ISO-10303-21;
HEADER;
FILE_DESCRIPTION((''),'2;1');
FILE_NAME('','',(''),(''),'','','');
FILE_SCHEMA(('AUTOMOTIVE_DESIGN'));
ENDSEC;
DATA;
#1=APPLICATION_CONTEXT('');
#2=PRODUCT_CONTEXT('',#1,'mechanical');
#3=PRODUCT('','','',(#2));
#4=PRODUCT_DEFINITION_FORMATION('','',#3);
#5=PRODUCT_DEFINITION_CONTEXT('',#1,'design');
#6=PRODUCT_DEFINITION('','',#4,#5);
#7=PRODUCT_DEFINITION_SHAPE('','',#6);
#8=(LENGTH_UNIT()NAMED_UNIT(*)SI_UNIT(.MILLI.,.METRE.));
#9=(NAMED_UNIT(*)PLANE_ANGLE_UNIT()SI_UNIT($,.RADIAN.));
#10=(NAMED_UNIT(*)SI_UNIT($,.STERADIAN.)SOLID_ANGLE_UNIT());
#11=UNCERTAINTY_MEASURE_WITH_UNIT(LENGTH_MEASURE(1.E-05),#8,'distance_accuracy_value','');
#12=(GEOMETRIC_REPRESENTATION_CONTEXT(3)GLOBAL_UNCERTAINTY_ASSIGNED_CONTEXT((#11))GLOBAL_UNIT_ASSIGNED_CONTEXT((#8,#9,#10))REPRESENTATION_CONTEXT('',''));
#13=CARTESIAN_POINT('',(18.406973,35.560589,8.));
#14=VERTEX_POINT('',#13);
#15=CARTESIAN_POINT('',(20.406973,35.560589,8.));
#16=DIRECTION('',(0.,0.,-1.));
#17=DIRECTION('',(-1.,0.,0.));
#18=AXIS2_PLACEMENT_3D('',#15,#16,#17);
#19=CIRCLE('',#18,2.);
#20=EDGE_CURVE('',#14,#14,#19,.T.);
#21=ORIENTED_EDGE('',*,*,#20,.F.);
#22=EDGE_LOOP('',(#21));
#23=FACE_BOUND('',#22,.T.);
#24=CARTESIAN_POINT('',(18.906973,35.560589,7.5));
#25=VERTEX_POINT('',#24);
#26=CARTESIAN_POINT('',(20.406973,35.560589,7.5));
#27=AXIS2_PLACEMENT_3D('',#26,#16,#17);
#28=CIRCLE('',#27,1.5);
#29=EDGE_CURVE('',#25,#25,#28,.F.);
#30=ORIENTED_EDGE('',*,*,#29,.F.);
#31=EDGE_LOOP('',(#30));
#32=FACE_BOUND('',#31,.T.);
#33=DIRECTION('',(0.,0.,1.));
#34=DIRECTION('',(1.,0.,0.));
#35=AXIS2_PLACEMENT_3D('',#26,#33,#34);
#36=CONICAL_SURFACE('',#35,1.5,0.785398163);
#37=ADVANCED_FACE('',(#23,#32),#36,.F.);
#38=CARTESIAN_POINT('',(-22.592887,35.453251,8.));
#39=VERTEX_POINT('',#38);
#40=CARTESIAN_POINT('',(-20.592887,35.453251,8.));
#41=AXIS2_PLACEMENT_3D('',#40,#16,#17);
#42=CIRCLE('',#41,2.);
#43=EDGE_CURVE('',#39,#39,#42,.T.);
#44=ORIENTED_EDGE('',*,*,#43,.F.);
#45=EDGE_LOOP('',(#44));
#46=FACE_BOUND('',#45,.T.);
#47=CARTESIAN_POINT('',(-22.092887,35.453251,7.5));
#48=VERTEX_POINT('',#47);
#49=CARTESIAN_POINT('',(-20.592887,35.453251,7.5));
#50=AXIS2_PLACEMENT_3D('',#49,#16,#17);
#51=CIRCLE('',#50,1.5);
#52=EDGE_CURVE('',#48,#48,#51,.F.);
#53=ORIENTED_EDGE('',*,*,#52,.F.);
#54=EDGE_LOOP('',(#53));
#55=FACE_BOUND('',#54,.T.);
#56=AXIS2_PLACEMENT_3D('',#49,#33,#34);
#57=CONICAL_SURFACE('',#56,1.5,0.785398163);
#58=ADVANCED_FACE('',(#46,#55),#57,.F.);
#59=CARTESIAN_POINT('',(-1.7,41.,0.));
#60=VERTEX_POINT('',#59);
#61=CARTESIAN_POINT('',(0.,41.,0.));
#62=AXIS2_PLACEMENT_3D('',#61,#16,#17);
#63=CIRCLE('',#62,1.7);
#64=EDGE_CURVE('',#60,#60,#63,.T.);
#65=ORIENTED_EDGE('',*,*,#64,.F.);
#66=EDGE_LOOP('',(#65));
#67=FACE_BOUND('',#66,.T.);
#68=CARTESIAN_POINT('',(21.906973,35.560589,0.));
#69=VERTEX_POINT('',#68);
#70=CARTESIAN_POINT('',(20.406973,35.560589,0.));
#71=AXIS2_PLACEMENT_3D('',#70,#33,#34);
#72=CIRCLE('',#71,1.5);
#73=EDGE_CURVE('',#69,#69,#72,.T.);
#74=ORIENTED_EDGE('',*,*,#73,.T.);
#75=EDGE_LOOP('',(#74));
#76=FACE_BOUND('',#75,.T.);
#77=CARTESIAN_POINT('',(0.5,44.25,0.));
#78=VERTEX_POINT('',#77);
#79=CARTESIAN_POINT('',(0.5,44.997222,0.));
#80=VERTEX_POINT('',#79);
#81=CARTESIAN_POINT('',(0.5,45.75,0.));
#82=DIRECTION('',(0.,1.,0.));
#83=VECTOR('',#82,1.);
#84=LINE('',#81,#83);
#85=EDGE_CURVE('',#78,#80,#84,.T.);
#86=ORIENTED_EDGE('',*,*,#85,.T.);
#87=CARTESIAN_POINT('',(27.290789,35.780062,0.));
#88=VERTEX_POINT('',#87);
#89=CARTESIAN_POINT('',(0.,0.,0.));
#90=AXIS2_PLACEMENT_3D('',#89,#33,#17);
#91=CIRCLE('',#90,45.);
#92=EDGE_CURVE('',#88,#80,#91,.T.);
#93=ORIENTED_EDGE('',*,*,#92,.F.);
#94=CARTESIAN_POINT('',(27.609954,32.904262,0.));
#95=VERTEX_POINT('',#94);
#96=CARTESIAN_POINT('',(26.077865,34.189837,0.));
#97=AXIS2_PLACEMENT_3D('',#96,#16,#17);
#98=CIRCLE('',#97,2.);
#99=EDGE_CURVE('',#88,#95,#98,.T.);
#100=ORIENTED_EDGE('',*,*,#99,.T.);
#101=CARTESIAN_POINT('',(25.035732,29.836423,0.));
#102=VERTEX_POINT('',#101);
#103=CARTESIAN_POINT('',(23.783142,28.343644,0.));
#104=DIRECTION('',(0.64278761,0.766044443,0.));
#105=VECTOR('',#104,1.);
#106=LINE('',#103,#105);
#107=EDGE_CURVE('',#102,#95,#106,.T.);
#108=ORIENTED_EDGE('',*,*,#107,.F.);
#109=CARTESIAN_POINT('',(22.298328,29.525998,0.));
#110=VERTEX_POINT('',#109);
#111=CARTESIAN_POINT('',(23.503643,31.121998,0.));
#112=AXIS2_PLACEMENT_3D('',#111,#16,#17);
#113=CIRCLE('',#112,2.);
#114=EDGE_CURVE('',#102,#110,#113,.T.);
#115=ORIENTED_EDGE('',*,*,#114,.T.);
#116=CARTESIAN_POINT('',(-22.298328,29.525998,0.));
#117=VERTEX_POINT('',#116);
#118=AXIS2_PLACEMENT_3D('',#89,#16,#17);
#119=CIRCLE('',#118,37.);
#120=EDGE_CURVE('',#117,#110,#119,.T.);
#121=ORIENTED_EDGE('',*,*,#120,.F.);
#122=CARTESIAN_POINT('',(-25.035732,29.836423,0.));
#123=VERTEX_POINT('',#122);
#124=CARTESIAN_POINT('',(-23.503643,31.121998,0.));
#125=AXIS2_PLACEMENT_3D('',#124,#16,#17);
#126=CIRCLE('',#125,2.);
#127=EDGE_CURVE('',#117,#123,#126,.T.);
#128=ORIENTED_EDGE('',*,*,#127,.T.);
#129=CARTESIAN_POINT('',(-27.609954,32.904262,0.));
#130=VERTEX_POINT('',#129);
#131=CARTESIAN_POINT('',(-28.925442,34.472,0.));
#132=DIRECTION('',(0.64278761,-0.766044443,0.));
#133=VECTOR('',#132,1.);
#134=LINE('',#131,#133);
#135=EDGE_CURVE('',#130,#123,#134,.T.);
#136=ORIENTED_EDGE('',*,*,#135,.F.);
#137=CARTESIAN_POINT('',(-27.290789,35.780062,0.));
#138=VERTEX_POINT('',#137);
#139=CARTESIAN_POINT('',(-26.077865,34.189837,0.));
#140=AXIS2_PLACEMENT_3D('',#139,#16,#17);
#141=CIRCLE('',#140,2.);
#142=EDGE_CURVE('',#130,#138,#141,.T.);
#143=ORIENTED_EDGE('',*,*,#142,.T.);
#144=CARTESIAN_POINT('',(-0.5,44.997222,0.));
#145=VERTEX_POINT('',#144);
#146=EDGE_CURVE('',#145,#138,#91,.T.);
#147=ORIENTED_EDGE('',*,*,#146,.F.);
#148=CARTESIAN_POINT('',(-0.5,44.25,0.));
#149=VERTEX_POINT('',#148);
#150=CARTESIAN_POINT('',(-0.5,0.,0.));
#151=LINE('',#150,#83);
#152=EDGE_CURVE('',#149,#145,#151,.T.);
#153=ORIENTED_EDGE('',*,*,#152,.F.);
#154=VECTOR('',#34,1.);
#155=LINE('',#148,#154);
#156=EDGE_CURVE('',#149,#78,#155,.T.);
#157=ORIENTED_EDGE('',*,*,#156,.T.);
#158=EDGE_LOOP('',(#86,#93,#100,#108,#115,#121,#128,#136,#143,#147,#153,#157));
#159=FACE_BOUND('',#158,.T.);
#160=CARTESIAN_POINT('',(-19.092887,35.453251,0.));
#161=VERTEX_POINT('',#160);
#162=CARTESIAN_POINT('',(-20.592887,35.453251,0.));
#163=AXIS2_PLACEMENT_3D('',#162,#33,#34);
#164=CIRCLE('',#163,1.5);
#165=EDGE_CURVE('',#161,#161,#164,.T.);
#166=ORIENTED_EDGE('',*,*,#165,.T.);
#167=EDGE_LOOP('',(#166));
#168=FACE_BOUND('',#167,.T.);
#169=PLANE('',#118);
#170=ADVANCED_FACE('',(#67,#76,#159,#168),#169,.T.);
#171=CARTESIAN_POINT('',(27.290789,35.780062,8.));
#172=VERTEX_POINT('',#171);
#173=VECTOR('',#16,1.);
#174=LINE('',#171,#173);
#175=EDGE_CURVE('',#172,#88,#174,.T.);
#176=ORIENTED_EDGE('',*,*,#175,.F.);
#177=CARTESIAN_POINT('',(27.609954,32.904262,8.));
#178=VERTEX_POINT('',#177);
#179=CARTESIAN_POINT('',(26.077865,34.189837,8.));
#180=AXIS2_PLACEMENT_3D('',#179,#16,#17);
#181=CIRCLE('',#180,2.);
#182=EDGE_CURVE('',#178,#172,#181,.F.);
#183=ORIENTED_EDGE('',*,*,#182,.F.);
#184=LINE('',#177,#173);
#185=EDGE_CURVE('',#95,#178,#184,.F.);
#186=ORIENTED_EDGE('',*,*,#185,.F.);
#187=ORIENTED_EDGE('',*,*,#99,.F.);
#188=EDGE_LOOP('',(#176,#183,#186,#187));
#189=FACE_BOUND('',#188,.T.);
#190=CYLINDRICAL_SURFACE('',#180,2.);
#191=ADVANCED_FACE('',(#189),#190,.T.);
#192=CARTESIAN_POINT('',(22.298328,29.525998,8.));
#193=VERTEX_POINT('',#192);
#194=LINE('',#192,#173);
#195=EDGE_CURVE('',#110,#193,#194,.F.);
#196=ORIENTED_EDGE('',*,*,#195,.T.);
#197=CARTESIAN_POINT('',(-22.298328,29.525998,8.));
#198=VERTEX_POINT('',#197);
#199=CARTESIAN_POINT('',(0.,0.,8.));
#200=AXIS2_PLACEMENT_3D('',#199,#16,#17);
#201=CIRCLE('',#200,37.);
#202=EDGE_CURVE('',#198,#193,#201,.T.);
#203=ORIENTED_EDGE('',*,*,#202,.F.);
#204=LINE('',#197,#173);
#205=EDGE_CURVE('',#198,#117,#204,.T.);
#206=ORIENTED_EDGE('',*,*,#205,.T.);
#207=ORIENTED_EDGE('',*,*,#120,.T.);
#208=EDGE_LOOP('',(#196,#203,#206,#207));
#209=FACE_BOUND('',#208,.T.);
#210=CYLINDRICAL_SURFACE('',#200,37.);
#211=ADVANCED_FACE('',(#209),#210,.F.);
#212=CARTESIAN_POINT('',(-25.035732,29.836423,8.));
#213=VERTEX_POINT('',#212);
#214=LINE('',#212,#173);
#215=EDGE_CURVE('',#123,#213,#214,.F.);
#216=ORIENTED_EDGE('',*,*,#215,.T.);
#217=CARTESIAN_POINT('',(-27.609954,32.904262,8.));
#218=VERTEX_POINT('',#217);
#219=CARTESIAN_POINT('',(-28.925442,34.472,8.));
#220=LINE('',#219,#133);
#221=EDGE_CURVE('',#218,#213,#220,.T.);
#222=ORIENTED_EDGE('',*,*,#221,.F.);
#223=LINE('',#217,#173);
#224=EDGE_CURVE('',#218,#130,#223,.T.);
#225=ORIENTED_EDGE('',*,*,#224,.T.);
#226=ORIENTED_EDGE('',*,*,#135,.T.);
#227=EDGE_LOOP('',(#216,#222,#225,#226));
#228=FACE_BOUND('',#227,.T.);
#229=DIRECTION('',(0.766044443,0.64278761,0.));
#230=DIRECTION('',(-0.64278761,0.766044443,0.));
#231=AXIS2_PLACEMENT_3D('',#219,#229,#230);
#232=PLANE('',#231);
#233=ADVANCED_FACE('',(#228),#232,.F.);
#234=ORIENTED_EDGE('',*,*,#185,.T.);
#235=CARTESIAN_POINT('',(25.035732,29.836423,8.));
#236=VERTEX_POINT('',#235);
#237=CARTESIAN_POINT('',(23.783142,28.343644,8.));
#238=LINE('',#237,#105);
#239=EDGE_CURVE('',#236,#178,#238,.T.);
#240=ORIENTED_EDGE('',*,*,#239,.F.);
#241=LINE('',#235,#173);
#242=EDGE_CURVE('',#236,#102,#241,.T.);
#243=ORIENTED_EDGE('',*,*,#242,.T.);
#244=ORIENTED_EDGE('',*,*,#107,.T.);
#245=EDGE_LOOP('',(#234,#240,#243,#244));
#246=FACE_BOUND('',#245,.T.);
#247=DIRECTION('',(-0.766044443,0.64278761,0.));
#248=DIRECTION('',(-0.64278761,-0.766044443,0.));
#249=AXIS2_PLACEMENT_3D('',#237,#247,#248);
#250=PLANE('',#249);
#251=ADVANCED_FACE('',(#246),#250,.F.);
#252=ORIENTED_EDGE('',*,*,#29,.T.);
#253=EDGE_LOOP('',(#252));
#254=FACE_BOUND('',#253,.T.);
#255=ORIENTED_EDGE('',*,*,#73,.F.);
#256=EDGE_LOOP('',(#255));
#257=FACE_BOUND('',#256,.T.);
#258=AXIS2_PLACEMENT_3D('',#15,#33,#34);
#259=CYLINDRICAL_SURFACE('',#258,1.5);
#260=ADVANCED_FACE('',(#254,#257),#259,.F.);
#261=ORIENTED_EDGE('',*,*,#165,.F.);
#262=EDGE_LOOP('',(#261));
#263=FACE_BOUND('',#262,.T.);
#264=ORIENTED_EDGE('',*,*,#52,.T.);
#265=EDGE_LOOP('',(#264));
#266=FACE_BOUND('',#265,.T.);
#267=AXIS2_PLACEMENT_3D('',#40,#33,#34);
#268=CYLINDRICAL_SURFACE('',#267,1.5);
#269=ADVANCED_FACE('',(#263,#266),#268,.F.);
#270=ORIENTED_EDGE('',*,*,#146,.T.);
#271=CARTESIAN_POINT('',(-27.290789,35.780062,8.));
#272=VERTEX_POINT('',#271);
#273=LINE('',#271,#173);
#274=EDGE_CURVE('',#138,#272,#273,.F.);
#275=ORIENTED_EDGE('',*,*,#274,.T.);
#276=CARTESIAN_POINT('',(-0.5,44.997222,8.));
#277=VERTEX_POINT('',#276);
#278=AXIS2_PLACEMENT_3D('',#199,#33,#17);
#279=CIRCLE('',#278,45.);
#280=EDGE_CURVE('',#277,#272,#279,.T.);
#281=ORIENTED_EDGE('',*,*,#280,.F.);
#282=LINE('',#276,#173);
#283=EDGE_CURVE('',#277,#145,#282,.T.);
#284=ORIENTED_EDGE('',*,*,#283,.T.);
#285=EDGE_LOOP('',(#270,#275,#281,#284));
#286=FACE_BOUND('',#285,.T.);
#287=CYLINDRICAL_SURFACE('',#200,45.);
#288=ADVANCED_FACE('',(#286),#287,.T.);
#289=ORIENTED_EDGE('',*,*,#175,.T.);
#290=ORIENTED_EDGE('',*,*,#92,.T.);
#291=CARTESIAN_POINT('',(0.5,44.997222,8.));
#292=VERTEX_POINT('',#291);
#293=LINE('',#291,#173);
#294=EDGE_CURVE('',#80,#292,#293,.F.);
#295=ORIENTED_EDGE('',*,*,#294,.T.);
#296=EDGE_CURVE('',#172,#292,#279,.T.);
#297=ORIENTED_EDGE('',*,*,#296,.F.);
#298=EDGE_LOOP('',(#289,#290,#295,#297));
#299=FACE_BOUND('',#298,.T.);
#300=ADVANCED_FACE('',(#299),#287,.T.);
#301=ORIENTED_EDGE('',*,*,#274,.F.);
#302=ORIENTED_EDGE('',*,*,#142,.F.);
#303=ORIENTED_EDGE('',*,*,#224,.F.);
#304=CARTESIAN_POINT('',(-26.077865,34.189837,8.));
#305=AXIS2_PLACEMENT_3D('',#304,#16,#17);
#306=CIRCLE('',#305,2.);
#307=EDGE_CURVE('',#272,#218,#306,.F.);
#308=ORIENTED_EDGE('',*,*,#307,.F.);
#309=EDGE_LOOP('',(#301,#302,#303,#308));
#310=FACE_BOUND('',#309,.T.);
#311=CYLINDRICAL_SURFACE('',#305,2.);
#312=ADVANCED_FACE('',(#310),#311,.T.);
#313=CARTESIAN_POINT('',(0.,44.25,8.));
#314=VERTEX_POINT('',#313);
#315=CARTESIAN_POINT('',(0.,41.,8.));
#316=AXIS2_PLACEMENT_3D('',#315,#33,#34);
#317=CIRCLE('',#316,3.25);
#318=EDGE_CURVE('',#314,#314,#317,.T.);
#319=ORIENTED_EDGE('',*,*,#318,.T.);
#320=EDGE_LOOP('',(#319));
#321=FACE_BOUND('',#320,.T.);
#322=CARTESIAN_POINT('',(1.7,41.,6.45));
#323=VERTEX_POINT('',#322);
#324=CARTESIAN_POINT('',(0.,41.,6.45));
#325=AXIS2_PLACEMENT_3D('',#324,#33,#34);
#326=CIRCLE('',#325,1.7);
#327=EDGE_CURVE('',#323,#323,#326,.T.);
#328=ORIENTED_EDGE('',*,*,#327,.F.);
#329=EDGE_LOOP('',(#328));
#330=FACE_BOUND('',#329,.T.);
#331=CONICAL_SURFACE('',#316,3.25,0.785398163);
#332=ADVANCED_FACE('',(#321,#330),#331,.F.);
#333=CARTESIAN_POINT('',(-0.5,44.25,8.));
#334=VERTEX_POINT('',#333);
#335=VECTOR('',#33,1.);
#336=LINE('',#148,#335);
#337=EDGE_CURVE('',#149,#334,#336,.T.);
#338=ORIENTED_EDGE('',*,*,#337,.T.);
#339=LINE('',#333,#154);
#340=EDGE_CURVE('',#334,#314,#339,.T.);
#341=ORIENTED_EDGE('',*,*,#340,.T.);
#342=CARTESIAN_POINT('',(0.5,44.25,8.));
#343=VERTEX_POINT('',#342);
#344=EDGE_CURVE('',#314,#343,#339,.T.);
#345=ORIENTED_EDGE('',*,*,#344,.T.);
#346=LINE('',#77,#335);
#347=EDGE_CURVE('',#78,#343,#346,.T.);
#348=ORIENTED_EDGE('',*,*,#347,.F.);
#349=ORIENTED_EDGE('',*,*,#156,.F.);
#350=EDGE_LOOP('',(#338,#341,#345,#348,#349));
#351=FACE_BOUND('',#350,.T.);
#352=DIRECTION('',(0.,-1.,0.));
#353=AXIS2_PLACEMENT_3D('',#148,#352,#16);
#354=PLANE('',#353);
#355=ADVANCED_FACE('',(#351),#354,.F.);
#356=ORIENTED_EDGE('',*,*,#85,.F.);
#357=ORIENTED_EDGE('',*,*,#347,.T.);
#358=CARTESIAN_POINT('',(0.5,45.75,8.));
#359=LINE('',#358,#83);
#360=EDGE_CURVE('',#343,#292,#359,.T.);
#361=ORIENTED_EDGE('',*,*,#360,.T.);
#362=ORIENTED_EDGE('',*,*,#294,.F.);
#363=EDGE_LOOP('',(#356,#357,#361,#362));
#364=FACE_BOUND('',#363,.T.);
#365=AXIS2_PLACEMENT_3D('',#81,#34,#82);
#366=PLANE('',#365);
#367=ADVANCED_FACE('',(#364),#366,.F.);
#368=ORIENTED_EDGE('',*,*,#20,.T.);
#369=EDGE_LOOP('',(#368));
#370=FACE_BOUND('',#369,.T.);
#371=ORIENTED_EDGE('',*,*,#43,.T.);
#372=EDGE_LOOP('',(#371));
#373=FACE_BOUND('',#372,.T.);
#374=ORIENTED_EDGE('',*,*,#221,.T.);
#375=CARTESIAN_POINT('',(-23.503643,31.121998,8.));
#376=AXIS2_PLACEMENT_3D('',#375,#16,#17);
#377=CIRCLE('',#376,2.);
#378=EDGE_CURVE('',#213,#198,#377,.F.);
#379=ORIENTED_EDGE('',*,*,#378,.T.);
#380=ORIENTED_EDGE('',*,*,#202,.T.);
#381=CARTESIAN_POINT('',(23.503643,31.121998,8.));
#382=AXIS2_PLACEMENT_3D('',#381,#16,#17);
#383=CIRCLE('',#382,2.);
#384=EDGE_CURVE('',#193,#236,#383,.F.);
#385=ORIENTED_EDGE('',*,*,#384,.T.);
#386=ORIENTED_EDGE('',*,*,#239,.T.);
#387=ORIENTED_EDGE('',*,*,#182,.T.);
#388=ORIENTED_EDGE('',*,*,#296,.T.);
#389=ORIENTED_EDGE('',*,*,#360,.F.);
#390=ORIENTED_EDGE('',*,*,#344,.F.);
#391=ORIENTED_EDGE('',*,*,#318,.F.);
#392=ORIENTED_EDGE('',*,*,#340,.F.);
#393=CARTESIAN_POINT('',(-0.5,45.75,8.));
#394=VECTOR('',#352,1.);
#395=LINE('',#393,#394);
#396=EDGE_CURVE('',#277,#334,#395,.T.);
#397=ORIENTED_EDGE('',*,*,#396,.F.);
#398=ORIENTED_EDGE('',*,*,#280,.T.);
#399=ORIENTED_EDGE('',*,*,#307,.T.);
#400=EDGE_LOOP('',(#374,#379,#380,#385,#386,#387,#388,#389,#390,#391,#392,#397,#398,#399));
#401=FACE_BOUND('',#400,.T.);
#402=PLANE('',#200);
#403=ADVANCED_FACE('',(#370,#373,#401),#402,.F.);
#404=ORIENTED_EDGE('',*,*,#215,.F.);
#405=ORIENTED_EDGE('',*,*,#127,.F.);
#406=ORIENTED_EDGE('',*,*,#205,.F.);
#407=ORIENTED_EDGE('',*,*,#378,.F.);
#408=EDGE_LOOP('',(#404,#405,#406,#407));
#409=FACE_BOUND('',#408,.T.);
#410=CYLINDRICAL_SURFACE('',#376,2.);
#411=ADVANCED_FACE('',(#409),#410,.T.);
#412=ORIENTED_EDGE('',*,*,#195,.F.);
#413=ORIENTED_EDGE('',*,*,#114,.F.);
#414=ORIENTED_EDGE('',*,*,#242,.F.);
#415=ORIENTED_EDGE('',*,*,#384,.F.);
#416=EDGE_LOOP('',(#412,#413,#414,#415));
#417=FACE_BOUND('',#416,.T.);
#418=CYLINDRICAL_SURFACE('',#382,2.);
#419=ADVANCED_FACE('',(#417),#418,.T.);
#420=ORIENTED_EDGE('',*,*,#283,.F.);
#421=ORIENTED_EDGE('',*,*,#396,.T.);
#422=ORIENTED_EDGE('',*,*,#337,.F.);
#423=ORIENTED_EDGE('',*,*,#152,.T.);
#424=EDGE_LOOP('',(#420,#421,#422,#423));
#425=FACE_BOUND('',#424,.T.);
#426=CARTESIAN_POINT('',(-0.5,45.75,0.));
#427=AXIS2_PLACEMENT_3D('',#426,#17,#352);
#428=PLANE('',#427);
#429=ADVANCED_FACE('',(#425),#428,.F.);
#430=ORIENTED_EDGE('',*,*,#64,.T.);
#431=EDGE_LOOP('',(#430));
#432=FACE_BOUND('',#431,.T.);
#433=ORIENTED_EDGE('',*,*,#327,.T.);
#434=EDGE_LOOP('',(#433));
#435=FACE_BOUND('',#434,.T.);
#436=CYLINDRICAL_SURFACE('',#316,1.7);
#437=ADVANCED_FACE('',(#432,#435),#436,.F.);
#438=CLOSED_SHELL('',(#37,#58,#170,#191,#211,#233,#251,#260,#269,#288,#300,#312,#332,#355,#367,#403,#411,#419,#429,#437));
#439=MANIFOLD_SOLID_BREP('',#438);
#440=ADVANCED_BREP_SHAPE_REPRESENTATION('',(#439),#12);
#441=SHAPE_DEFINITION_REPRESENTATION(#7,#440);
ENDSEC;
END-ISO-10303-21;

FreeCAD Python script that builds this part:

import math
import FreeCAD as App
import Part
import Sketcher
from FreeCAD import Vector
Q = App.Units.Quantity


def edges_at(feature, points):
    """Names of the edges that pass closest to the given points."""
    edges = feature.Shape.Edges
    near = lambda p: min(range(len(edges)), key=lambda i: edges[i].distToShape(Part.Vertex(*p))[0])
    return sorted({f"Edge{near(p) + 1}" for p in points})

doc = App.newDocument("Part")
body = doc.addObject("PartDesign::Body", "Body")

sketch1 = doc.addObject("Sketcher::SketchObject", "Sketch")
body.addObject(sketch1)
sketch1.AttachmentSupport = (doc.XY_Plane, [""])
sketch1.MapMode = "FlatFace"
sketch1.addGeometry([
    Part.LineSegment(Vector(-28.925442, 34.472, 0), Vector(-23.783142, 28.343644, 0)),
    Part.ArcOfCircle(Part.Circle(Vector(0, 0, 0), Vector(0, 0, 1), 37), math.radians(50), math.radians(130)),
    Part.LineSegment(Vector(23.783142, 28.343644, 0), Vector(28.925442, 34.472, 0)),
    Part.ArcOfCircle(Part.Circle(Vector(0, 0, 0), Vector(0, 0, 1), 45), math.radians(50), math.radians(130)),
], False)
sketch1.addConstraint([
    Sketcher.Constraint("Coincident", 0, 2, 1, 2),
    Sketcher.Constraint("Coincident", 1, 1, 2, 1),
    Sketcher.Constraint("Coincident", 2, 2, 3, 1),
    Sketcher.Constraint("Coincident", 3, 2, 0, 1),
    Sketcher.Constraint("Coincident", 1, 3, -1, 1),
    Sketcher.Constraint("Coincident", 3, 3, -1, 1),
    Sketcher.Constraint("Horizontal", 0, 2, 1, 1),
    Sketcher.Constraint("Horizontal", 2, 2, 3, 2),
    Sketcher.Constraint("Radius", 1, 37.0),
    Sketcher.Constraint("Radius", 3, 45.0),
    Sketcher.Constraint("Angle", 0, Q("-50 deg")),
    Sketcher.Constraint("DistanceY", -1, 1, 2, 2, 34.472),
])
pad1 = doc.addObject("PartDesign::Pad", "Pad")
body.addObject(pad1)
pad1.Profile = sketch1
pad1.Length = 8

sketch2 = doc.addObject("Sketcher::SketchObject", "Sketch001")
body.addObject(sketch2)
sketch2.AttachmentSupport = (doc.XY_Plane, [""])
sketch2.MapMode = "FlatFace"
sketch2.AttachmentOffset = App.Placement(Vector(0, 0, 8), App.Rotation())
sketch2.addGeometry(Part.Circle(Vector(0, 41, 0), Vector(0, 0, 1), 1.7), False)
sketch2.addConstraint([
    Sketcher.Constraint("PointOnObject", 0, 3, -2),
    Sketcher.Constraint("Diameter", 0, 3.4),
    Sketcher.Constraint("DistanceY", -1, 1, 0, 3, 41.0),
])
doc.recompute()
hole = doc.addObject("PartDesign::Hole", "Hole")
body.addObject(hole)
hole.Profile = sketch2
hole.ThreadType = "None"
hole.Diameter = 3.4
hole.DepthType = "Dimension"
hole.Depth = 10
hole.DrillPoint = "Angled"
hole.DrillPointAngle = 118
hole.HoleCutType = "Countersink"
hole.HoleCutDiameter = 6.5
hole.HoleCutCountersinkAngle = 90
doc.recompute()

fillet = doc.addObject("PartDesign::Fillet", "Fillet")
body.addObject(fillet)
fillet.Base = (hole, edges_at(hole, [
    (-23.783, 28.344, 4),
    (-28.925, 34.472, 4),
    (28.925, 34.472, 4),
    (23.783, 28.344, 4),
]))
fillet.Radius = 2

sketch3 = doc.addObject("Sketcher::SketchObject", "Sketch002")
body.addObject(sketch3)
sketch3.AttachmentSupport = (doc.XY_Plane, [""])
sketch3.MapMode = "FlatFace"
sketch3.AttachmentOffset = App.Placement(Vector(0, 0, 8), App.Rotation())
sketch3.addGeometry([
    Part.Circle(Vector(20.406973, 35.560589, 0), Vector(0, 0, 1), 1.5),
    Part.Circle(Vector(-20.592887, 35.453251, 0), Vector(0, 0, 1), 1.5),
], False)
sketch3.addConstraint([
    Sketcher.Constraint("Equal", 0, 1),
    Sketcher.Constraint("Diameter", 0, 3.0),
    Sketcher.Constraint("DistanceY", -1, 1, 0, 3, 35.560589),
    Sketcher.Constraint("DistanceY", -1, 1, 1, 3, 35.453251),
    Sketcher.Constraint("DistanceX", 1, 3, 0, 3, 40.999859),
    Sketcher.Constraint("DistanceX", -1, 1, 0, 3, 20.406973),
])
doc.recompute()
hole2 = doc.addObject("PartDesign::Hole", "Hole001")
body.addObject(hole2)
hole2.Profile = sketch3
hole2.ThreadType = "None"
hole2.Diameter = 3
hole2.DepthType = "ThroughAll"
doc.recompute()

chamfer = doc.addObject("PartDesign::Chamfer", "Chamfer")
body.addObject(chamfer)
chamfer.Base = (hole2, edges_at(hole2, [(21.907, 35.561, 8), (-19.093, 35.453, 8)]))
chamfer.Size = 0.5

sketch4 = doc.addObject("Sketcher::SketchObject", "Sketch003")
body.addObject(sketch4)
sketch4.AttachmentSupport = (doc.XY_Plane, [""])
sketch4.MapMode = "FlatFace"
sketch4.AttachmentOffset = App.Placement(Vector(0, 0, 8), App.Rotation())
sketch4.addGeometry([
    Part.LineSegment(Vector(-0.5, 45.75, 0), Vector(-0.5, 44.25, 0)),
    Part.LineSegment(Vector(-0.5, 44.25, 0), Vector(0.5, 44.25, 0)),
    Part.LineSegment(Vector(0.5, 44.25, 0), Vector(0.5, 45.75, 0)),
    Part.LineSegment(Vector(0.5, 45.75, 0), Vector(-0.5, 45.75, 0)),
], False)
sketch4.addConstraint([
    Sketcher.Constraint("Coincident", 0, 2, 1, 1),
    Sketcher.Constraint("Coincident", 1, 2, 2, 1),
    Sketcher.Constraint("Coincident", 2, 2, 3, 1),
    Sketcher.Constraint("Coincident", 3, 2, 0, 1),
    Sketcher.Constraint("Vertical", 0),
    Sketcher.Constraint("Horizontal", 1),
    Sketcher.Constraint("Vertical", 2),
    Sketcher.Constraint("Horizontal", 3),
    Sketcher.Constraint("DistanceX", 1, 1, 1, 2, 1.0),
    Sketcher.Constraint("DistanceY", 0, 2, 0, 1, 1.5),
    Sketcher.Constraint("DistanceX", 0, 2, -1, 1, 0.5),
    Sketcher.Constraint("DistanceY", -1, 1, 0, 2, 44.25),
])
pocket1 = doc.addObject("PartDesign::Pocket", "Pocket")
body.addObject(pocket1)
pocket1.Profile = sketch4
pocket1.Type = "ThroughAll"

doc.recompute()
